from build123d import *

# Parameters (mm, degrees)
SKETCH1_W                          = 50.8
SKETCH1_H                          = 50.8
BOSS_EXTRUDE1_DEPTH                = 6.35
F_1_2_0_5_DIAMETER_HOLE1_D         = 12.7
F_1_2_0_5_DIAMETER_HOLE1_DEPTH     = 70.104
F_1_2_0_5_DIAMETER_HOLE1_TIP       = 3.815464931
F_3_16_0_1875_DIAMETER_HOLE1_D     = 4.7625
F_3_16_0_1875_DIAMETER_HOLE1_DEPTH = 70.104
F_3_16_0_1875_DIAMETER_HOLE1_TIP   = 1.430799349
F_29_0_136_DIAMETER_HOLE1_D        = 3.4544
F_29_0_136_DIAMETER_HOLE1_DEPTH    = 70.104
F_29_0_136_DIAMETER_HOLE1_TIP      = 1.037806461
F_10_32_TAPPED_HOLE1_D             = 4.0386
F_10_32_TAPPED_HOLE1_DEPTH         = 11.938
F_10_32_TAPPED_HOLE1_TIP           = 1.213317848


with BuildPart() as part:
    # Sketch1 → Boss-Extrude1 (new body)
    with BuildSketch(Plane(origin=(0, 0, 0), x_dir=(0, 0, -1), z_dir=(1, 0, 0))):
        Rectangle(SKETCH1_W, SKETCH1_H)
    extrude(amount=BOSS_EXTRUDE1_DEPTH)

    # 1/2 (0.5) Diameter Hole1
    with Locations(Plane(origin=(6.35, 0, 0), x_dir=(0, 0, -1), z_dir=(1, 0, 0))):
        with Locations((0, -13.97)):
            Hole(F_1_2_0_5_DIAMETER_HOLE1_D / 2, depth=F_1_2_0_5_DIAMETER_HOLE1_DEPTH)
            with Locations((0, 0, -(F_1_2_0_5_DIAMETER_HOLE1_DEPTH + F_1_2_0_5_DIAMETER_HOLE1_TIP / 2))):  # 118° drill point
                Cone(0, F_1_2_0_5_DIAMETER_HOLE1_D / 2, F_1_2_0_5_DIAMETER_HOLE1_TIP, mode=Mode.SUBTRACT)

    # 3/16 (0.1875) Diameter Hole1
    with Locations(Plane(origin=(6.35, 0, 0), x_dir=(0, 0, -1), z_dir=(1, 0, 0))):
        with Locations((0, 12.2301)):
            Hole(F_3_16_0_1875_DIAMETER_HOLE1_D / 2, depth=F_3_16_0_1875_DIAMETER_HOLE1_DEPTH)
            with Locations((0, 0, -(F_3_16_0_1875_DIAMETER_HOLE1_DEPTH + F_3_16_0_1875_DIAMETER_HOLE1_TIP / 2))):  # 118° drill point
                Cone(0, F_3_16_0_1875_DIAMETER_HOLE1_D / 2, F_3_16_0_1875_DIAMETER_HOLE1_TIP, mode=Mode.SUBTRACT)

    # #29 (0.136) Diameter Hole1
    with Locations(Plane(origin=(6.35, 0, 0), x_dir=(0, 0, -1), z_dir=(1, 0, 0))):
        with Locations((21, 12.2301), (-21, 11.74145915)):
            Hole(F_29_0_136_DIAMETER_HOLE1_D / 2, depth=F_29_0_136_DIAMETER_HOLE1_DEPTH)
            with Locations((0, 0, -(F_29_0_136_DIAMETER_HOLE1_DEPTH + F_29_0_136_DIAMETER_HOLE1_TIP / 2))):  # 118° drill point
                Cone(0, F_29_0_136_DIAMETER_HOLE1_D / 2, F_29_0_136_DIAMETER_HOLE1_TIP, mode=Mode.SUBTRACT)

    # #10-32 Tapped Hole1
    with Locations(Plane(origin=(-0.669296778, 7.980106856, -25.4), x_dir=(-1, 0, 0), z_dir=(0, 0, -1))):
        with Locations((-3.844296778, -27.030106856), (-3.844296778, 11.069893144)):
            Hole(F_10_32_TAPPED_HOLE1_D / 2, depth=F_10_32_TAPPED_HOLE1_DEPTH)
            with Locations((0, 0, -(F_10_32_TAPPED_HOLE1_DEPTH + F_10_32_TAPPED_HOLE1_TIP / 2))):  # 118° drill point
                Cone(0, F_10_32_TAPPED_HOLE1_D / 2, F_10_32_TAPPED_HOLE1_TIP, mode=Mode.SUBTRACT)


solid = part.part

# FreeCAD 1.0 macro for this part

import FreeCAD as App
import Part
import Sketcher

V = App.Vector
Q = App.Units.Quantity


def add_polygon(sketch, points):
    """Adds a closed chain of lines whose ends are joined by coincident constraints."""
    first, n = sketch.GeometryCount, len(points)
    for a, b in zip(points, points[1:] + points[:1]):
        sketch.addGeometry(Part.LineSegment(App.Vector(*a, 0), App.Vector(*b, 0)), False)
    for i in range(n):
        sketch.addConstraint(Sketcher.Constraint("Coincident", first + i, 2, first + (i + 1) % n, 1))

doc = App.newDocument("Part")
body = doc.addObject("PartDesign::Body", "Body")

sketch1 = body.newObject("Sketcher::SketchObject", "Sketch")
sketch1.AttachmentSupport = (doc.getObject("YZ_Plane"), [""])
sketch1.MapMode = "FlatFace"
add_polygon(sketch1, [(25.4, 25.4), (-25.4, 25.4), (-25.4, -25.4), (25.4, -25.4)])
sketch1.addConstraint(Sketcher.Constraint("Horizontal", 0))
sketch1.addConstraint(Sketcher.Constraint("Vertical", 1))
sketch1.addConstraint(Sketcher.Constraint("Horizontal", 2))
sketch1.addConstraint(Sketcher.Constraint("Vertical", 3))
sketch1.addConstraint(Sketcher.Constraint("Symmetric", 0, 2, 2, 2, -1, 1))
sketch1.addConstraint(Sketcher.Constraint("Equal", 2, 1))
sketch1.addConstraint(Sketcher.Constraint("DistanceX", 0, 2, 0, 1, Q("2 in")))
pad1 = body.newObject("PartDesign::Pad", "Pad")
pad1.Profile = sketch1
pad1.Length = Q("0.25 in")

sketch2 = body.newObject("Sketcher::SketchObject", "Sketch001")
sketch2.AttachmentSupport = (doc.getObject("YZ_Plane"), [""])
sketch2.MapMode = "FlatFace"
sketch2.AttachmentOffset = App.Placement(V(0, 0, 0.25 * 25.4), App.Rotation())
sketch2.addGeometry(Part.Circle(V(-13.97, 0, 0), V(0, 0, 1), 6.35), False)
sketch2.addConstraint(Sketcher.Constraint("PointOnObject", 0, 3, -1))
sketch2.addConstraint(Sketcher.Constraint("Diameter", 0, Q("0.5 in")))
sketch2.addConstraint(Sketcher.Constraint("DistanceX", 0, 3, -1, 1, Q("0.55 in")))
doc.recompute()
hole = body.newObject("PartDesign::Hole", "Hole")
hole.Profile = sketch2
hole.ThreadType = "None"
hole.Diameter = Q("0.5 in")
hole.DepthType = "Dimension"
hole.Depth = Q("2.76 in")
hole.DrillPoint = "Angled"
hole.DrillPointAngle = 118

sketch3 = body.newObject("Sketcher::SketchObject", "Sketch002")
sketch3.AttachmentSupport = (doc.getObject("YZ_Plane"), [""])
sketch3.MapMode = "FlatFace"
sketch3.AttachmentOffset = App.Placement(V(0, 0, 0.25 * 25.4), App.Rotation())
sketch3.addGeometry(Part.Circle(V(12.2301, 0, 0), V(0, 0, 1), 2.38125), False)
sketch3.addConstraint(Sketcher.Constraint("PointOnObject", 0, 3, -1))
sketch3.addConstraint(Sketcher.Constraint("Diameter", 0, Q("0.1875 in")))
sketch3.addConstraint(Sketcher.Constraint("DistanceX", -1, 1, 0, 3, Q("0.4815 in")))
doc.recompute()
hole2 = body.newObject("PartDesign::Hole", "Hole001")
hole2.Profile = sketch3
hole2.ThreadType = "None"
hole2.Diameter = Q("0.1875 in")
hole2.DepthType = "Dimension"
hole2.Depth = Q("2.76 in")
hole2.DrillPoint = "Angled"
hole2.DrillPointAngle = 118

sketch4 = body.newObject("Sketcher::SketchObject", "Sketch003")
sketch4.AttachmentSupport = (doc.getObject("YZ_Plane"), [""])
sketch4.MapMode = "FlatFace"
sketch4.AttachmentOffset = App.Placement(V(0, 0, 0.25 * 25.4), App.Rotation())
sketch4.addGeometry(Part.Circle(V(12.2301, -21, 0), V(0, 0, 1), 1.7272), False)
sketch4.addGeometry(Part.Circle(V(11.741459, 21, 0), V(0, 0, 1), 1.7272), False)
sketch4.addConstraint(Sketcher.Constraint("Equal", 0, 1))
sketch4.addConstraint(Sketcher.Constraint("Diameter", 0, Q("0.136 in")))
sketch4.addConstraint(Sketcher.Constraint("DistanceX", -1, 1, 0, 3, Q("0.4815 in")))
sketch4.addConstraint(Sketcher.Constraint("DistanceY", 0, 3, -1, 1, Q("21 mm")))
sketch4.addConstraint(Sketcher.Constraint("DistanceY", -1, 1, 1, 3, Q("21 mm")))
sketch4.addConstraint(Sketcher.Constraint("DistanceX", -1, 1, 1, 3, Q("11.741459 mm")))
doc.recompute()
hole3 = body.newObject("PartDesign::Hole", "Hole002")
hole3.Profile = sketch4
hole3.ThreadType = "None"
hole3.Diameter = Q("0.136 in")
hole3.DepthType = "Dimension"
hole3.Depth = Q("2.76 in")
hole3.DrillPoint = "Angled"
hole3.DrillPointAngle = 118

sketch5 = body.newObject("Sketcher::SketchObject", "Sketch004")
sketch5.AttachmentSupport = (doc.getObject("XY_Plane"), [""])
sketch5.MapMode = "FlatFace"
sketch5.AttachmentOffset = App.Placement(V(0, 0, -1 * 25.4), App.Rotation())
sketch5.addGeometry(Part.Circle(V(3.175, -19.05, 0), V(0, 0, 1), 2.0193), False)
sketch5.addGeometry(Part.Circle(V(3.175, 19.05, 0), V(0, 0, 1), 2.0193), False)
sketch5.addConstraint(Sketcher.Constraint("Equal", 0, 1))
sketch5.addConstraint(Sketcher.Constraint("Symmetric", 0, 3, 1, 3, -1))
sketch5.addConstraint(Sketcher.Constraint("Diameter", 0, Q("0.159 in")))
sketch5.addConstraint(Sketcher.Constraint("DistanceY", 0, 3, 1, 3, Q("1.5 in")))
sketch5.addConstraint(Sketcher.Constraint("DistanceX", -1, 1, 0, 3, Q("0.125 in")))
doc.recompute()
hole4 = body.newObject("PartDesign::Hole", "Hole003")
hole4.Profile = sketch5
hole4.ThreadType = "None"
hole4.Diameter = Q("0.159 in")
hole4.DepthType = "Dimension"
hole4.Depth = Q("0.47 in")
hole4.DrillPoint = "Angled"
hole4.DrillPointAngle = 118
hole4.Reversed = True

doc.recompute()
